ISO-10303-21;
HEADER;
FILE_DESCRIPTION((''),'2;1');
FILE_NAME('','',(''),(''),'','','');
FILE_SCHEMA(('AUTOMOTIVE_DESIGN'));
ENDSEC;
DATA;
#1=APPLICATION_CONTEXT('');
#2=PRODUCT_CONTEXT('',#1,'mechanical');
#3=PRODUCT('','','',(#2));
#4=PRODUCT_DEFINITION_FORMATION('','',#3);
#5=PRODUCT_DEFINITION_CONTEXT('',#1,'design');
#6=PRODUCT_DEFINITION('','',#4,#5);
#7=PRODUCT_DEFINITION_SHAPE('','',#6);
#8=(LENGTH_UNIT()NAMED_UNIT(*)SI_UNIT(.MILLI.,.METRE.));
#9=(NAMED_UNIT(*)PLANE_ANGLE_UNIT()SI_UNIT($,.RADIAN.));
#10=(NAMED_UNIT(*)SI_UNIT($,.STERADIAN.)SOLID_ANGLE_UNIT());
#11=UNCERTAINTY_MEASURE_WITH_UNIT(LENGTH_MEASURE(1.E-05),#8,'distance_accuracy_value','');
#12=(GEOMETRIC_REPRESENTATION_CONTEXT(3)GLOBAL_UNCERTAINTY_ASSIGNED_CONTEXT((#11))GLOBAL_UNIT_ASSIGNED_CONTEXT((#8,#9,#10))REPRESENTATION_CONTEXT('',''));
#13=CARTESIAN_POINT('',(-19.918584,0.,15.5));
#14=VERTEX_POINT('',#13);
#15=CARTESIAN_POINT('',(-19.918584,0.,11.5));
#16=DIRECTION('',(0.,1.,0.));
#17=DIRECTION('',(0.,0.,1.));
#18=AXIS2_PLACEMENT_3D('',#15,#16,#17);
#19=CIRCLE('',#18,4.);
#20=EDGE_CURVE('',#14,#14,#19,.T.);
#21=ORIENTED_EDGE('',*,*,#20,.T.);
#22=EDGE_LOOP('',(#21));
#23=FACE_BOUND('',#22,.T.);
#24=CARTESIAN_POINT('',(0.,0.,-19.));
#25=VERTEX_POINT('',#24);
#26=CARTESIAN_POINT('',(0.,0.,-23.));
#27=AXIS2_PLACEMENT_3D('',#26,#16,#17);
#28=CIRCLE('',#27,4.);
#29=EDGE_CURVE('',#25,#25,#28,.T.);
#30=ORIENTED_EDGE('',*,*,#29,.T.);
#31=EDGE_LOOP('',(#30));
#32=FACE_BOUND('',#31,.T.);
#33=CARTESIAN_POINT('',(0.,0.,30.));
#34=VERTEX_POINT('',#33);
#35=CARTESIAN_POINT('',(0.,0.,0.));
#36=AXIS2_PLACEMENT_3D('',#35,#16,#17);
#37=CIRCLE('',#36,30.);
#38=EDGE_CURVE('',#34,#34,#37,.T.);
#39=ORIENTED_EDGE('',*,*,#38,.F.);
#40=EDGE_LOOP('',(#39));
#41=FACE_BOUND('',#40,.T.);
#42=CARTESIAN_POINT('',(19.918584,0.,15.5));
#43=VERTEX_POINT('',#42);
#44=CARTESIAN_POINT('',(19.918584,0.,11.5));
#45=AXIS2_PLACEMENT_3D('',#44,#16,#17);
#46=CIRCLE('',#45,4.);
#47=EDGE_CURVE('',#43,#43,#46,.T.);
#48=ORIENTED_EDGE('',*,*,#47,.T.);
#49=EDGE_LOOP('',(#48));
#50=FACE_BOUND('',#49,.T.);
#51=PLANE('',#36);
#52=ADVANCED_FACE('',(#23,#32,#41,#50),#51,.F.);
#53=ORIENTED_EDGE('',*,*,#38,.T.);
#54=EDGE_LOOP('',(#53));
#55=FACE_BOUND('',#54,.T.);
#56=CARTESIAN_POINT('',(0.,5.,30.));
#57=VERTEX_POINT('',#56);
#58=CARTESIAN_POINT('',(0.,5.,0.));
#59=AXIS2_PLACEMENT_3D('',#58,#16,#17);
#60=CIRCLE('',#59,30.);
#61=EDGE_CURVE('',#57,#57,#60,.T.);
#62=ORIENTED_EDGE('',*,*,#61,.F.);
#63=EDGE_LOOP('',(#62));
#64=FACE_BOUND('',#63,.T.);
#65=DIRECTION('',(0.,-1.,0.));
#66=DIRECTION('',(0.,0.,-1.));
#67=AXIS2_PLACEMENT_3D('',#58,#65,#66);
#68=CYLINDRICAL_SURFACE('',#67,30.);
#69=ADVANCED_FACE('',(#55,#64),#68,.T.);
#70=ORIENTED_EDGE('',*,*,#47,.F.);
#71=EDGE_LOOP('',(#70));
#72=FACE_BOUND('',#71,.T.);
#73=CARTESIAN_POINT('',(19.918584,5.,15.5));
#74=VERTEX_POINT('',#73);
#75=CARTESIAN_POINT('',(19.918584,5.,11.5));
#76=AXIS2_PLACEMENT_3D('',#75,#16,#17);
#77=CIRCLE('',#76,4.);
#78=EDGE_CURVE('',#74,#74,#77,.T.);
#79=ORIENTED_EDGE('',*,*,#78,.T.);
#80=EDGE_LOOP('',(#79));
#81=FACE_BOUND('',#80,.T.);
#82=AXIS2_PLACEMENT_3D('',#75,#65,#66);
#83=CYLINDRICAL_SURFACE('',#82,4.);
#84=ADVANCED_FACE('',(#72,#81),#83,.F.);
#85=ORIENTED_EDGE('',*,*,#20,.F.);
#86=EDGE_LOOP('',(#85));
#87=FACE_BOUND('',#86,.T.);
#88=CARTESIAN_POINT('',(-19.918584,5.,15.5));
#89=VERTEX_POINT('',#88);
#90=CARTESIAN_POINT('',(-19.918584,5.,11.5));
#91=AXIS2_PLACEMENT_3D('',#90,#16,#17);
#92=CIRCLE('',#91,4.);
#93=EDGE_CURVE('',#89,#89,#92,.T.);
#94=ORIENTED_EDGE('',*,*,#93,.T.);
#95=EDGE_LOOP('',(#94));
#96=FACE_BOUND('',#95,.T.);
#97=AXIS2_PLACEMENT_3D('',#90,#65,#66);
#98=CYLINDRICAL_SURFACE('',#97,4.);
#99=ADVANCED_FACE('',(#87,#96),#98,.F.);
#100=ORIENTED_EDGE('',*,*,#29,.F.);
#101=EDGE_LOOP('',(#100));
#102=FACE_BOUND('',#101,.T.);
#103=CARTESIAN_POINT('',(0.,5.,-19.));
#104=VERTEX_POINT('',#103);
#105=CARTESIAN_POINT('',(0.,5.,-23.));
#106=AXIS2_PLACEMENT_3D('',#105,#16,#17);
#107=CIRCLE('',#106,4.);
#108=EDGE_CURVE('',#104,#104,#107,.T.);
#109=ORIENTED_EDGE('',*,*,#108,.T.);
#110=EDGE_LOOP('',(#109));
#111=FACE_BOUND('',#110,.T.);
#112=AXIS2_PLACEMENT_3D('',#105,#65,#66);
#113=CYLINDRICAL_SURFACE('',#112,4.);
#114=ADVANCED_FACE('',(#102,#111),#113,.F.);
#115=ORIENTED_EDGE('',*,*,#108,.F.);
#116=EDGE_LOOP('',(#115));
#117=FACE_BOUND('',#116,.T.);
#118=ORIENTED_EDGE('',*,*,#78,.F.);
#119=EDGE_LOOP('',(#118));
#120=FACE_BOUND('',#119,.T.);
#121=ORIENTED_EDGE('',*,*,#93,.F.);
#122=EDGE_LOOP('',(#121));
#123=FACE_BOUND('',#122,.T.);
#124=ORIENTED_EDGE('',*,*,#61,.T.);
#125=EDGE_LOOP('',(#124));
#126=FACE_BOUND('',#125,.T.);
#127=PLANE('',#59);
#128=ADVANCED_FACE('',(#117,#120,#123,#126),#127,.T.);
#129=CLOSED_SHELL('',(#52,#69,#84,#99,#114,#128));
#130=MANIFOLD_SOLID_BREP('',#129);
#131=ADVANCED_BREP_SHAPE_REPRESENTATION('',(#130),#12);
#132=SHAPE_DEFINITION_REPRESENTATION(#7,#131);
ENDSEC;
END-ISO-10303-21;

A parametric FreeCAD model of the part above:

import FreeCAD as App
import Part
import Sketcher

V = App.Vector
Q = App.Units.Quantity

doc = App.newDocument("Part")
body = doc.addObject("PartDesign::Body", "Body")

sketch1 = body.newObject("Sketcher::SketchObject", "Sketch")
sketch1.AttachmentSupport = (doc.getObject("XZ_Plane"), [""])
sketch1.MapMode = "FlatFace"
sketch1.addGeometry([
    Part.Circle(V(0, 0, 0), V(0, 0, 1), 30),
    Part.Circle(V(0, -23, 0), V(0, 0, 1), 4),
    Part.Circle(V(-19.918584, 11.5, 0), V(0, 0, 1), 4),
    Part.Circle(V(19.918584, 11.5, 0), V(0, 0, 1), 4),
], False)
sketch1.addConstraint([
    Sketcher.Constraint("Coincident", 0, 3, -1, 1),
    Sketcher.Constraint("Equal", 1, 2),
    Sketcher.Constraint("Equal", 2, 3),
    Sketcher.Constraint("Symmetric", 2, 3, 3, 3, -2),
    Sketcher.Constraint("PointOnObject", 1, 3, -2),
    Sketcher.Constraint("Diameter", 0, Q("60 mm")),
    Sketcher.Constraint("Diameter", 1, Q("8 mm")),
    Sketcher.Constraint("DistanceY", 1, 3, -1, 1, Q("23 mm")),
    Sketcher.Constraint("DistanceY", -1, 1, 2, 3, Q("11.5 mm")),
    Sketcher.Constraint("DistanceX", 2, 3, 3, 3, Q("39.837169 mm")),
])
pad1 = body.newObject("PartDesign::Pad", "Pad")
pad1.Profile = sketch1
pad1.Length = 5
pad1.Reversed = True

doc.recompute()
